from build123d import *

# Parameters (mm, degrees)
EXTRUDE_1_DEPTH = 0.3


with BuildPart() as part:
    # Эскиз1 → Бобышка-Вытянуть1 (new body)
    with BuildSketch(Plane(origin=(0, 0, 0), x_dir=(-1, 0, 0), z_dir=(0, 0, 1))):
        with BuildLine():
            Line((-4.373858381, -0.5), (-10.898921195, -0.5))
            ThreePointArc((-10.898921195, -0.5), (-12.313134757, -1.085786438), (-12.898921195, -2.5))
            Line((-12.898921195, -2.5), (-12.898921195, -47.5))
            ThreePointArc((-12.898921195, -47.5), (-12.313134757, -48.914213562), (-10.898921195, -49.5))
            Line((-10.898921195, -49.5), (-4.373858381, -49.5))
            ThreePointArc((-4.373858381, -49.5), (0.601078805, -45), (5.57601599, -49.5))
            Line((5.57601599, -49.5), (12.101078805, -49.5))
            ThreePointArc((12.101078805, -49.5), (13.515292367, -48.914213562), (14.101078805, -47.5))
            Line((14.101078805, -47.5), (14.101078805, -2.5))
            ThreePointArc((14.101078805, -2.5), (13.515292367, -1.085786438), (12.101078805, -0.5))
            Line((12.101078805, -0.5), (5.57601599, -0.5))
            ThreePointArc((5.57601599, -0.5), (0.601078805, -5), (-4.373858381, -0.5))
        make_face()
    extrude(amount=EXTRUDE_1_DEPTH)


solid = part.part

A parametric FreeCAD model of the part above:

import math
import FreeCAD as App
import Part
import Sketcher
Q = App.Units.Quantity

doc = App.newDocument("Part")
body = doc.addObject("PartDesign::Body", "Body")

# Sketch on XY plane
sketch1 = body.newObject("Sketcher::SketchObject", "Sketch")
sketch1.AttachmentSupport = (doc.getObject("XY_Plane"), [""])
sketch1.MapMode = "FlatFace"
sketch1.addGeometry([
    Part.LineSegment(App.Vector(4.4, 0.5, 0), App.Vector(10.9, 0.5, 0)),  # 0
    Part.ArcOfCircle(Part.Circle(App.Vector(10.9, 2.5, 0), App.Vector(0, 0, 1), 2), math.radians(-90), math.radians(0)),  # 1
    Part.LineSegment(App.Vector(12.9, 2.5, 0), App.Vector(12.9, 47.5, 0)),  # 2
    Part.ArcOfCircle(Part.Circle(App.Vector(10.9, 47.5, 0), App.Vector(0, 0, 1), 2), math.radians(0), math.radians(90)),  # 3
    Part.LineSegment(App.Vector(10.9, 49.5, 0), App.Vector(4.4, 49.5, 0)),  # 4
    Part.ArcOfCircle(Part.Circle(App.Vector(-0.6, 50, 0), App.Vector(0, 0, 1), 5), math.radians(-174), math.radians(-6)),  # 5
    Part.LineSegment(App.Vector(-5.6, 49.5, 0), App.Vector(-12.1, 49.5, 0)),  # 6
    Part.ArcOfCircle(Part.Circle(App.Vector(-12.1, 47.5, 0), App.Vector(0, 0, 1), 2), math.radians(90), math.radians(180)),  # 7
    Part.LineSegment(App.Vector(-14.1, 47.5, 0), App.Vector(-14.1, 2.5, 0)),  # 8
    Part.ArcOfCircle(Part.Circle(App.Vector(-12.1, 2.5, 0), App.Vector(0, 0, 1), 2), math.radians(-180), math.radians(-90)),  # 9
    Part.LineSegment(App.Vector(-12.1, 0.5, 0), App.Vector(-5.6, 0.5, 0)),  # 10
    Part.ArcOfCircle(Part.Circle(App.Vector(-0.6, 0, 0), App.Vector(0, 0, 1), 5), math.radians(6), math.radians(174)),  # 11
], False)
sketch1.addConstraint([
    Sketcher.Constraint("Tangent", 0, 2, 1, 1),
    Sketcher.Constraint("Tangent", 1, 2, 2, 1),
    Sketcher.Constraint("Tangent", 2, 2, 3, 1),
    Sketcher.Constraint("Tangent", 3, 2, 4, 1),
    Sketcher.Constraint("Coincident", 4, 2, 5, 2),
    Sketcher.Constraint("Coincident", 5, 1, 6, 1),
    Sketcher.Constraint("Tangent", 6, 2, 7, 1),
    Sketcher.Constraint("Tangent", 7, 2, 8, 1),
    Sketcher.Constraint("Tangent", 8, 2, 9, 1),
    Sketcher.Constraint("Tangent", 9, 2, 10, 1),
    Sketcher.Constraint("Coincident", 10, 2, 11, 2),
    Sketcher.Constraint("Coincident", 11, 1, 0, 1),
    Sketcher.Constraint("Horizontal", 0),
    Sketcher.Constraint("Vertical", 2),
    Sketcher.Constraint("Horizontal", 4),
    Sketcher.Constraint("Horizontal", 6),
    Sketcher.Constraint("Vertical", 8),
    Sketcher.Constraint("Horizontal", 10),
    Sketcher.Constraint("Equal", 1, 3),
    Sketcher.Constraint("Equal", 3, 7),
    Sketcher.Constraint("Equal", 7, 9),
    Sketcher.Constraint("Equal", 5, 11),
    Sketcher.Constraint("PointOnObject", 11, 3, -1),
    Sketcher.Constraint("Horizontal", 3, 3, 7, 3),
    Sketcher.Constraint("Horizontal", 1, 3, 9, 3),
    Sketcher.Constraint("Vertical", 5, 3, 11, 3),
    Sketcher.Constraint("Vertical", 5, 1, 10, 2),
    Sketcher.Constraint("Equal", 4, 6),
    Sketcher.Constraint("Radius", 1, Q("2 mm")),
    Sketcher.Constraint("Radius", 5, Q("5 mm")),
    Sketcher.Constraint("DistanceY", 2, 1, 2, 2, Q("45 mm")),
    Sketcher.Constraint("DistanceY", -1, 1, 5, 3, Q("50 mm")),
    Sketcher.Constraint("DistanceX", 7, 3, 3, 3, Q("23 mm")),
    Sketcher.Constraint("DistanceX", -1, 1, 1, 3, Q("10.898921 mm")),
])
pad1 = body.newObject("PartDesign::Pad", "Pad")
pad1.Profile = sketch1
pad1.Length = 0.3

doc.recompute()
